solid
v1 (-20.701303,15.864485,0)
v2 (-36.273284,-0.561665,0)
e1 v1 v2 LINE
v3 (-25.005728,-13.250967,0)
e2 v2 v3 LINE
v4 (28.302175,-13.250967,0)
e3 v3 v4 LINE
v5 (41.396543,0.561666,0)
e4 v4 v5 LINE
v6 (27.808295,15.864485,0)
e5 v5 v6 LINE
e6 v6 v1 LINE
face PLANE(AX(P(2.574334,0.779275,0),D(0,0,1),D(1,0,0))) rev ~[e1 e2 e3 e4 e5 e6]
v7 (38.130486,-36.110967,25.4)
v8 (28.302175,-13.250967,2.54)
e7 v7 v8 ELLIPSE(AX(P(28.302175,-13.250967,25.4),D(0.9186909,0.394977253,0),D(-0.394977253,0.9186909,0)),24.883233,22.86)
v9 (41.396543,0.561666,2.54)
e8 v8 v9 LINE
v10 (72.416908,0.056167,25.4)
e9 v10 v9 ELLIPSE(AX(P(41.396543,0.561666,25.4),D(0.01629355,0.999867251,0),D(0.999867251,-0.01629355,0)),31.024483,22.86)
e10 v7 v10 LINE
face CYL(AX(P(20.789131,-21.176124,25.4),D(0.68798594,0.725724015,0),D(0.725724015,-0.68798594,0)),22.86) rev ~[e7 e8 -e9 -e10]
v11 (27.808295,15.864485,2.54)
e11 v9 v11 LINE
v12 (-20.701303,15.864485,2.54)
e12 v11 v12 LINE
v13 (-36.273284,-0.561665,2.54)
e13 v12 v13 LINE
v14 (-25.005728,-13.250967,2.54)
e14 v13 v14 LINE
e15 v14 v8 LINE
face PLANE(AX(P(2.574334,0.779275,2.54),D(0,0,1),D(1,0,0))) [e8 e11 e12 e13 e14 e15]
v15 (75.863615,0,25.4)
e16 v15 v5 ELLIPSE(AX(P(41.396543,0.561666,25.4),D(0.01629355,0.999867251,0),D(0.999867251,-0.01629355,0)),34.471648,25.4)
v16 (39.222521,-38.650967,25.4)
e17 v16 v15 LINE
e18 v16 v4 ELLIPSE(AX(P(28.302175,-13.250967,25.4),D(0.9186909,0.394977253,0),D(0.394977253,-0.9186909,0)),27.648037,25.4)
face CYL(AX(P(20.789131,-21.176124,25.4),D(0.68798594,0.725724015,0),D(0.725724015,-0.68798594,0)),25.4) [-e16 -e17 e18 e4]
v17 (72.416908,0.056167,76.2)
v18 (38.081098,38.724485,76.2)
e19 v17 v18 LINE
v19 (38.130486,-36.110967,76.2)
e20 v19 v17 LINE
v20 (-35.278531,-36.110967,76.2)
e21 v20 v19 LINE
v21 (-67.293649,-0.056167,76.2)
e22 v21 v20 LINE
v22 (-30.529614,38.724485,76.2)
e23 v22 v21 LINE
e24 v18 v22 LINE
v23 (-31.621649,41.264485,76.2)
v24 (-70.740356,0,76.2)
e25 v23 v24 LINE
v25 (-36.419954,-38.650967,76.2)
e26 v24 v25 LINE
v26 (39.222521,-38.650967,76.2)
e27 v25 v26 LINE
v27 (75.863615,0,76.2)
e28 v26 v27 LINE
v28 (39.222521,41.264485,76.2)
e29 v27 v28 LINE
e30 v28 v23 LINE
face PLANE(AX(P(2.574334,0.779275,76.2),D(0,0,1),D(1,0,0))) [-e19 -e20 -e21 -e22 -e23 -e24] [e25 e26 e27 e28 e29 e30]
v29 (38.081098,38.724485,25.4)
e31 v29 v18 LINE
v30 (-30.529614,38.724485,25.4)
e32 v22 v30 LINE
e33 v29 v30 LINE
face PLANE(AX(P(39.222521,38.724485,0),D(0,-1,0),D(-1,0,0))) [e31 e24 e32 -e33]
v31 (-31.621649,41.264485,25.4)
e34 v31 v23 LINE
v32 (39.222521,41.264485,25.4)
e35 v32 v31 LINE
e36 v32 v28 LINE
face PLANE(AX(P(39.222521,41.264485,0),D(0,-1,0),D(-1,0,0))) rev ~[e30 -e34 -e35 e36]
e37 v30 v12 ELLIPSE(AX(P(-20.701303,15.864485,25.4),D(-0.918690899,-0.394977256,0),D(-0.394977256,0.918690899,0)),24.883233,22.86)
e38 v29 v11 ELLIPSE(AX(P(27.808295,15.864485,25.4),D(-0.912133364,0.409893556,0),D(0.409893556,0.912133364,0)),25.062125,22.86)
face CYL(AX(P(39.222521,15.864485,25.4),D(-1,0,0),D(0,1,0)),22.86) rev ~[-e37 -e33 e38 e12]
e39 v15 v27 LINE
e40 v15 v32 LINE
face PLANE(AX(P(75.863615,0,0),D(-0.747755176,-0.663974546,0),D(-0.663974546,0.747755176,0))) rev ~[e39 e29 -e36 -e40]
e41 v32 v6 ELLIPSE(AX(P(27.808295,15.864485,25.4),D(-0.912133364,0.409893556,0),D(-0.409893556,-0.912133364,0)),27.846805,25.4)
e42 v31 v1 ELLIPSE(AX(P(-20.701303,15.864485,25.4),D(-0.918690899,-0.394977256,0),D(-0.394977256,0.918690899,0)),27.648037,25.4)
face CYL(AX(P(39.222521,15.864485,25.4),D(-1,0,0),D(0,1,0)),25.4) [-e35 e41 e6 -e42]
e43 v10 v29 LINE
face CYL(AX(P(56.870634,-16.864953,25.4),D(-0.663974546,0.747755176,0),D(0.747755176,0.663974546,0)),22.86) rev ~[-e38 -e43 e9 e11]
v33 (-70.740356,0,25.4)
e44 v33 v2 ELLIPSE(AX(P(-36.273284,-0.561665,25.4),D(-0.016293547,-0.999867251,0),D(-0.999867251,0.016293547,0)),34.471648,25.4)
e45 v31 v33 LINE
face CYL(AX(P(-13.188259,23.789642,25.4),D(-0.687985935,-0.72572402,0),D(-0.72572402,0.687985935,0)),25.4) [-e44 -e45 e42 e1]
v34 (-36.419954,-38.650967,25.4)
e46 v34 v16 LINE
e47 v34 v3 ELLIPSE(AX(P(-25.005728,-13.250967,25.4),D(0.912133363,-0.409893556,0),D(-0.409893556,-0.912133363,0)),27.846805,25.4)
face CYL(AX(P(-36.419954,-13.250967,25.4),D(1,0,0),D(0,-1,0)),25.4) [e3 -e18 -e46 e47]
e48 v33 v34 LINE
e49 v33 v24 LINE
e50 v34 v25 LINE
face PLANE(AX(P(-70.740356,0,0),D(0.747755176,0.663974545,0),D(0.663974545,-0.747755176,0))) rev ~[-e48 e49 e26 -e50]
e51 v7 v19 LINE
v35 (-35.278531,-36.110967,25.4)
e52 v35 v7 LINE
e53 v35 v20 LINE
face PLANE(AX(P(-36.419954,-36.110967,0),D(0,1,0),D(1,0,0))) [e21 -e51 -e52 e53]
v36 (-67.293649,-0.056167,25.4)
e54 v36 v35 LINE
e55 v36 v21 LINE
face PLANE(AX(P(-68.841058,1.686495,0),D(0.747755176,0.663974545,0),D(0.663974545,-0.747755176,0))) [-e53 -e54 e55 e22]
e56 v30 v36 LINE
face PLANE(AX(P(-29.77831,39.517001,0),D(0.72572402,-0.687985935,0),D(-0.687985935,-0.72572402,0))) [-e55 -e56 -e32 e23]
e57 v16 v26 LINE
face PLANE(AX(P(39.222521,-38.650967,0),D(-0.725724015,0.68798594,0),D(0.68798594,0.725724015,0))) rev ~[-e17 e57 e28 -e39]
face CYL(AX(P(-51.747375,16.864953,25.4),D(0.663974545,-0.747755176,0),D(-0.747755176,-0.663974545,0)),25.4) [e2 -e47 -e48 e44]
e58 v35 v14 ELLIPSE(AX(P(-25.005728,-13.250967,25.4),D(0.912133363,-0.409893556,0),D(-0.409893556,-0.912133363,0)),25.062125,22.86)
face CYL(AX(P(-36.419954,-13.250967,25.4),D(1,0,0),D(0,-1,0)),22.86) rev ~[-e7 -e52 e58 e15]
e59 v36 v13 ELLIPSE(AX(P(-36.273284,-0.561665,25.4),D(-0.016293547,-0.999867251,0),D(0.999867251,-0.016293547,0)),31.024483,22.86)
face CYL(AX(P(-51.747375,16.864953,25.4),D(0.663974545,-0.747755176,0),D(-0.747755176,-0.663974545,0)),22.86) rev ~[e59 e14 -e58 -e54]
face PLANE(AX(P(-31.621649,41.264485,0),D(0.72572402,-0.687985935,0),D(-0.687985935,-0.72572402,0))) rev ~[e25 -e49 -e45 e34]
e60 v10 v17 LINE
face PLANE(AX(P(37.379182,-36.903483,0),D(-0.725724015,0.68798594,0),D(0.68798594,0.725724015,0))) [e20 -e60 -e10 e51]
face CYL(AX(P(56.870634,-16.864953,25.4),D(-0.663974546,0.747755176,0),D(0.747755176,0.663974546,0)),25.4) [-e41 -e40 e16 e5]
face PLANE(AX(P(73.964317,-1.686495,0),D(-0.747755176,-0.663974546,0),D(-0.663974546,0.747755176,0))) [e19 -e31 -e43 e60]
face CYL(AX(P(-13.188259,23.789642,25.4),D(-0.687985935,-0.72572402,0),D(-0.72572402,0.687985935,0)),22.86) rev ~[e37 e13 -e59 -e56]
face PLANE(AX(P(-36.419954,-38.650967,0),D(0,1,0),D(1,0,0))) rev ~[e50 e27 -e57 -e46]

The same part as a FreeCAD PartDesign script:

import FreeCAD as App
import Part
import Sketcher
Q = App.Units.Quantity


def edges_at(feature, points):
    """Names of the edges that pass closest to the given points."""
    edges = feature.Shape.Edges
    near = lambda p: min(range(len(edges)), key=lambda i: edges[i].distToShape(Part.Vertex(*p))[0])
    return sorted({f"Edge{near(p) + 1}" for p in points})


def faces_at(feature, points):
    """Names of the faces that lie closest to the given points."""
    faces = feature.Shape.Faces
    near = lambda p: min(range(len(faces)), key=lambda i: faces[i].distToShape(Part.Vertex(*p))[0])
    return sorted({f"Face{near(p) + 1}" for p in points})

doc = App.newDocument("Part")
body = doc.addObject("PartDesign::Body", "Body")

# Sketch on XY plane
sketch1 = body.newObject("Sketcher::SketchObject", "Sketch")
sketch1.AttachmentSupport = (doc.getObject("XY_Plane"), [""])
sketch1.MapMode = "FlatFace"
sketch1.addGeometry([
    Part.LineSegment(App.Vector(-31.621649, 41.264485, 0), App.Vector(-70.740356, 0, 0)),  # 0
    Part.LineSegment(App.Vector(-70.740356, 0, 0), App.Vector(-36.419954, -38.650967, 0)),  # 1
    Part.LineSegment(App.Vector(-36.419954, -38.650967, 0), App.Vector(39.222521, -38.650967, 0)),  # 2
    Part.LineSegment(App.Vector(39.222521, -38.650967, 0), App.Vector(75.863615, 0, 0)),  # 3
    Part.LineSegment(App.Vector(75.863615, 0, 0), App.Vector(39.222521, 41.264485, 0)),  # 4
    Part.LineSegment(App.Vector(39.222521, 41.264485, 0), App.Vector(-31.621649, 41.264485, 0)),  # 5
], False)
sketch1.addConstraint([
    Sketcher.Constraint("Coincident", 0, 2, 1, 1),
    Sketcher.Constraint("Coincident", 1, 2, 2, 1),
    Sketcher.Constraint("Coincident", 2, 2, 3, 1),
    Sketcher.Constraint("Coincident", 3, 2, 4, 1),
    Sketcher.Constraint("Coincident", 4, 2, 5, 1),
    Sketcher.Constraint("Coincident", 5, 2, 0, 1),
    Sketcher.Constraint("Horizontal", 2),
    Sketcher.Constraint("Horizontal", 5),
    Sketcher.Constraint("PointOnObject", 0, 2, -1),
    Sketcher.Constraint("PointOnObject", 3, 2, -1),
    Sketcher.Constraint("Parallel", 0, 3),
    Sketcher.Constraint("Parallel", 1, 4),
    Sketcher.Constraint("Vertical", 2, 2, 4, 2),
    Sketcher.Constraint("DistanceX", 5, 2, 5, 1, Q("70.84417 mm")),
    Sketcher.Constraint("Distance", 0, Q("56.859748 mm")),
    Sketcher.Constraint("DistanceX", 2, 1, 2, 2, Q("75.642475 mm")),
    Sketcher.Constraint("DistanceX", -1, 1, 2, 2, Q("39.222521 mm")),
    Sketcher.Constraint("DistanceX", 1, 2, 3, 2, Q("112.283569 mm")),
])
pad1 = body.newObject("PartDesign::Pad", "Pad")
pad1.Profile = sketch1
pad1.Length = Q("3 in")
doc.recompute()

fillet = body.newObject("PartDesign::Fillet", "Fillet")
fillet.Base = (pad1, edges_at(pad1, [
    (3.8, 41.264, 0),
    (-51.181, 20.632, 0),
    (-53.58, -19.325, 0),
    (1.401, -38.651, 0),
    (57.543, -19.325, 0),
    (57.543, 20.632, 0),
]))
fillet.Radius = Q("1 in")
doc.recompute()

thickness = body.newObject("PartDesign::Thickness", "Thickness")
thickness.Base = (fillet, faces_at(fillet, [(2.562, 1.307, 76.2)]))
thickness.Value = Q("0.1 in")
thickness.Reversed = True
thickness.Join = "Arc"

doc.recompute()
